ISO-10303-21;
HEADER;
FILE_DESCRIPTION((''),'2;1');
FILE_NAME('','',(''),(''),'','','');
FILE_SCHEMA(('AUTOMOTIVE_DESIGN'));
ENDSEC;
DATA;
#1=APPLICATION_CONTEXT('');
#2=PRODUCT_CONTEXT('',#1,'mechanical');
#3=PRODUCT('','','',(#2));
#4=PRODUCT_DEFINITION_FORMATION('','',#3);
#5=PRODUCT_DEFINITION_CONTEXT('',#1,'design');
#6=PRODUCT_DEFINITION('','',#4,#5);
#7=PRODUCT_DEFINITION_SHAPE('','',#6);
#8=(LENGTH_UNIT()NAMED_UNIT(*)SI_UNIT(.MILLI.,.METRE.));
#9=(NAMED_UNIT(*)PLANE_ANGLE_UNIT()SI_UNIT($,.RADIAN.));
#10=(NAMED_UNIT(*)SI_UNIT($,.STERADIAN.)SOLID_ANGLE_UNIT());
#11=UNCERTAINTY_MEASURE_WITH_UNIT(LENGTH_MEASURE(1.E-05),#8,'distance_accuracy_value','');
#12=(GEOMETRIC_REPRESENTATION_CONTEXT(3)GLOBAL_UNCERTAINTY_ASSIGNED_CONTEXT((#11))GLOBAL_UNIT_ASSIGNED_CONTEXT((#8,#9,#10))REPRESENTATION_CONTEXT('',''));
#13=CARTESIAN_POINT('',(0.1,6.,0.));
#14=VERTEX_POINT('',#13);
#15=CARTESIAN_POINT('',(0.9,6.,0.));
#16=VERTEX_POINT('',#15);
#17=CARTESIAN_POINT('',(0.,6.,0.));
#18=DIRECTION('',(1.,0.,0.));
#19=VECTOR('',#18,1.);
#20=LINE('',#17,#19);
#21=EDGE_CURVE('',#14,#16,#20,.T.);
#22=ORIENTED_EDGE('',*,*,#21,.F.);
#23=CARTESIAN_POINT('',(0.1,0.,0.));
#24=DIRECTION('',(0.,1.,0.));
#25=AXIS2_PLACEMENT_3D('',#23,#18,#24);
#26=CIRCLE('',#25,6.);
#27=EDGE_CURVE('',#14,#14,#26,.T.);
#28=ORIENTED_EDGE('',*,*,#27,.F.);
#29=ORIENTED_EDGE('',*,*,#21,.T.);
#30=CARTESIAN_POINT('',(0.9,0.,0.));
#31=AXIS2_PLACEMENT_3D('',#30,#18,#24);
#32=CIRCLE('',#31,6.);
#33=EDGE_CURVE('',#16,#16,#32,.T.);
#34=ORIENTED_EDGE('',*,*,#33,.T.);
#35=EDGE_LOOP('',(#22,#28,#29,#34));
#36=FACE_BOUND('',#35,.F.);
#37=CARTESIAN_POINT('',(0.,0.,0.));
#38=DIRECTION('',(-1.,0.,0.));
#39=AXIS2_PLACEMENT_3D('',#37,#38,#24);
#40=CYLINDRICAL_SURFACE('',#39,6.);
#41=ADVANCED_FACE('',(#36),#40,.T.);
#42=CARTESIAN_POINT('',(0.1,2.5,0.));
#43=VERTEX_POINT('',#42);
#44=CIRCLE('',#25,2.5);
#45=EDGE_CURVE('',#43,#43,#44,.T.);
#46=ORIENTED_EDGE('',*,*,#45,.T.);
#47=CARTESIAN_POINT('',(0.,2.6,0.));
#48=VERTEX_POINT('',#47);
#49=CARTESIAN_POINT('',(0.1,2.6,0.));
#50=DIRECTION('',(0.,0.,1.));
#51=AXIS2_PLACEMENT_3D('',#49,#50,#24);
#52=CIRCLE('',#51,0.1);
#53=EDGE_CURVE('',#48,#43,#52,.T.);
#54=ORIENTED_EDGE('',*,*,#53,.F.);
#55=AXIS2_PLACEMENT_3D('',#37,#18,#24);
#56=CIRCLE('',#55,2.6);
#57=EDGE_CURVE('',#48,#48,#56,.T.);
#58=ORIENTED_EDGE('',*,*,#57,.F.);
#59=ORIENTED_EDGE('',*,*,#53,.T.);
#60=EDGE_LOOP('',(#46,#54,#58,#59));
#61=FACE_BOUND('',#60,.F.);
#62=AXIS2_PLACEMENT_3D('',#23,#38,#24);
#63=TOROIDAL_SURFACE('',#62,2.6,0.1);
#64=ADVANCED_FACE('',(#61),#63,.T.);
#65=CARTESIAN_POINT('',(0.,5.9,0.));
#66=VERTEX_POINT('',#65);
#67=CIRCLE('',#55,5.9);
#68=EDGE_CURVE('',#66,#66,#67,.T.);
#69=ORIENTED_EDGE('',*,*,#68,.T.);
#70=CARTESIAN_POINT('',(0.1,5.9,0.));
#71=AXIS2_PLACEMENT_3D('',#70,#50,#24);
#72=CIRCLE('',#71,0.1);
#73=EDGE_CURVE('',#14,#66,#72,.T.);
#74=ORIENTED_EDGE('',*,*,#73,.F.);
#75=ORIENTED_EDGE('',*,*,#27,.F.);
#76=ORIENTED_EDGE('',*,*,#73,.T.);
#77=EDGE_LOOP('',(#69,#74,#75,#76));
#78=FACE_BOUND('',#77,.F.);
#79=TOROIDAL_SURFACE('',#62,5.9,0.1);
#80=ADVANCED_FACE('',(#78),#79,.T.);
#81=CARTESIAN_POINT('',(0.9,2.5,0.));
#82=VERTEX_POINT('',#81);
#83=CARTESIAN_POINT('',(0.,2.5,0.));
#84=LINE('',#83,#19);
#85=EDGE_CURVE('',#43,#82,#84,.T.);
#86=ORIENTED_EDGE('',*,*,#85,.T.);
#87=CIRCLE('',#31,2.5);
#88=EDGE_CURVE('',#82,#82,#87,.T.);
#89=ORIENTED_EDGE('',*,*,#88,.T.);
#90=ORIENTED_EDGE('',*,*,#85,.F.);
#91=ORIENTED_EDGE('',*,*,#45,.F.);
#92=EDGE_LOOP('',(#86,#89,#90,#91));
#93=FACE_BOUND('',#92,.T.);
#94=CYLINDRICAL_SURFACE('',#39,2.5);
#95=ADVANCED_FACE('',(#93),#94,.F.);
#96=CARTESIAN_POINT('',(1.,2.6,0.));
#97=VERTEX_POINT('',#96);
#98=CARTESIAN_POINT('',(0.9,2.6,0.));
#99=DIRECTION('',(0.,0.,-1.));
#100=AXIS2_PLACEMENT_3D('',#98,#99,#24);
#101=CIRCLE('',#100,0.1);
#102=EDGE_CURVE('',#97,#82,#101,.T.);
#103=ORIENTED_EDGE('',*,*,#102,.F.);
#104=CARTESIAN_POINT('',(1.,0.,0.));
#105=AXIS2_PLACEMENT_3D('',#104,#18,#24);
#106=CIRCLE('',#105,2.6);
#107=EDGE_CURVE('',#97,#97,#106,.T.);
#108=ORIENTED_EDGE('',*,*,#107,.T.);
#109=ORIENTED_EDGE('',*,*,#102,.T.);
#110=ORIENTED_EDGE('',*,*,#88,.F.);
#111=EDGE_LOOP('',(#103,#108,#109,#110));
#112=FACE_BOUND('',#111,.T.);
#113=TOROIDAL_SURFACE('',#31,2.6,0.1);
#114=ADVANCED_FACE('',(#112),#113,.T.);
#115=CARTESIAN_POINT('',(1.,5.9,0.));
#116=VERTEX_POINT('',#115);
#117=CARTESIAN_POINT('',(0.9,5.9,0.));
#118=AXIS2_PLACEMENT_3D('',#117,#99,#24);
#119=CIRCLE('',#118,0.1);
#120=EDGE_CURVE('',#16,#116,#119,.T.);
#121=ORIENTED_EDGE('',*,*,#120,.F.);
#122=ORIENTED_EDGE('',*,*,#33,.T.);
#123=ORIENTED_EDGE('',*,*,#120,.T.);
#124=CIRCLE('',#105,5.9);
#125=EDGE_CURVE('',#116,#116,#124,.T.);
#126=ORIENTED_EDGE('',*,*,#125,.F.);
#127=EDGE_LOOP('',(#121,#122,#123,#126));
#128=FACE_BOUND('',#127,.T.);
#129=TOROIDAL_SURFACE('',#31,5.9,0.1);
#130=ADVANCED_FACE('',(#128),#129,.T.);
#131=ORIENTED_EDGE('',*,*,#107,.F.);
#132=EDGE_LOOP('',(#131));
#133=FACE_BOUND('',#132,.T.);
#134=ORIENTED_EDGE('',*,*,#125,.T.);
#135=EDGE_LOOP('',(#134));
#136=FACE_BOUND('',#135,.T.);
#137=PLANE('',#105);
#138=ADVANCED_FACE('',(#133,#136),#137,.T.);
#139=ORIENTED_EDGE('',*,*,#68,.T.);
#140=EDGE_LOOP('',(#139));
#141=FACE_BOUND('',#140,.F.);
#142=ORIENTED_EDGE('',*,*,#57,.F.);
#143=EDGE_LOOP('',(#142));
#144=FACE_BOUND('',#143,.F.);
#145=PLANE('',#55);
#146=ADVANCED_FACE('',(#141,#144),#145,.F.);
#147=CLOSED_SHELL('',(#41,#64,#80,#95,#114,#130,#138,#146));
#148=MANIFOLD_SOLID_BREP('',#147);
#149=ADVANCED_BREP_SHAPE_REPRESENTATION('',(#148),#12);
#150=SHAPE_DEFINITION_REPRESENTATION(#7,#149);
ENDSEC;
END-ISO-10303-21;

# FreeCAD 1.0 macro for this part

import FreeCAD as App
import Part
import Sketcher


def edges_at(feature, points):
    """Names of the edges that pass closest to the given points."""
    edges = feature.Shape.Edges
    near = lambda p: min(range(len(edges)), key=lambda i: edges[i].distToShape(Part.Vertex(*p))[0])
    return sorted({f"Edge{near(p) + 1}" for p in points})

doc = App.newDocument("Part")
body = doc.addObject("PartDesign::Body", "Body")

# Sketch on YZ plane
sketch1 = body.newObject("Sketcher::SketchObject", "Sketch")
sketch1.AttachmentSupport = (doc.getObject("YZ_Plane"), [""])
sketch1.MapMode = "FlatFace"
sketch1.addGeometry(Part.Circle(App.Vector(0, 0, 0), App.Vector(0, 0, 1), 6), False)
sketch1.addGeometry(Part.Circle(App.Vector(0, 0, 0), App.Vector(0, 0, 1), 2.5), False)
sketch1.addConstraint(Sketcher.Constraint("Coincident", 0, 3, -1, 1))
sketch1.addConstraint(Sketcher.Constraint("Coincident", 1, 3, -1, 1))
sketch1.addConstraint(Sketcher.Constraint("Diameter", 0, 12.0))
sketch1.addConstraint(Sketcher.Constraint("Diameter", 1, 5.0))
pad1 = body.newObject("PartDesign::Pad", "Pad")
pad1.Profile = sketch1
pad1.Length = 1
doc.recompute()

fillet = body.newObject("PartDesign::Fillet", "Fillet")
fillet.Base = (pad1, edges_at(pad1, [(1, -6, 0), (0, -6, 0)]))
fillet.Radius = 0.1
doc.recompute()

fillet2 = body.newObject("PartDesign::Fillet", "Fillet001")
fillet2.Base = (fillet, edges_at(fillet, [(0, -2.5, 0), (1, -2.5, 0)]))
fillet2.Radius = 0.1

doc.recompute()
